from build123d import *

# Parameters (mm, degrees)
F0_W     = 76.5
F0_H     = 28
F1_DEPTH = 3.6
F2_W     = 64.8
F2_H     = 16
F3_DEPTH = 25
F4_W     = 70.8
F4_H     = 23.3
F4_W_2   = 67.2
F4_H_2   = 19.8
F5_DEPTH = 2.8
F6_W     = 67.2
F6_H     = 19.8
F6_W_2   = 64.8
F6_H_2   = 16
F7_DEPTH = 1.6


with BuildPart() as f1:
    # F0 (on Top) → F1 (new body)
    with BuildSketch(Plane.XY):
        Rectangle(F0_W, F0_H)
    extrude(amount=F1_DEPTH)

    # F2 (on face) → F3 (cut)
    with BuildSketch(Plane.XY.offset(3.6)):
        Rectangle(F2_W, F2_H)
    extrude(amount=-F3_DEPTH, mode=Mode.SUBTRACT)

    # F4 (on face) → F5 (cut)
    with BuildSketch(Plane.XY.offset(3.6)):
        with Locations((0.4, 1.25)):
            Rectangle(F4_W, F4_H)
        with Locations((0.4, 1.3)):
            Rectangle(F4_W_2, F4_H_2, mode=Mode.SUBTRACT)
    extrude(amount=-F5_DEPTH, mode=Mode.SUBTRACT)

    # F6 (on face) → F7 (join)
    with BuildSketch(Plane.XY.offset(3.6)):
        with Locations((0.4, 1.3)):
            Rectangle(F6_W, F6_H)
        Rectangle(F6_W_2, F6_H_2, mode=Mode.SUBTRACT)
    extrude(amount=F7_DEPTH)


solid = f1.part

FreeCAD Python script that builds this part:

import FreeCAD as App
import Part
import Sketcher


def add_polygon(sketch, points):
    """Adds a closed chain of lines whose ends are joined by coincident constraints."""
    first, n = sketch.GeometryCount, len(points)
    for a, b in zip(points, points[1:] + points[:1]):
        sketch.addGeometry(Part.LineSegment(App.Vector(*a, 0), App.Vector(*b, 0)), False)
    for i in range(n):
        sketch.addConstraint(Sketcher.Constraint("Coincident", first + i, 2, first + (i + 1) % n, 1))

doc = App.newDocument("Part")
params = doc.addObject("Spreadsheet::Sheet", "Params")
for row, (alias, value) in enumerate([
    ("sketch1_height", "28 mm"),
    ("sketch1_width", "76.5 mm"),
    ("pad1_length", "3.6 mm"),
    ("sketch2_height", "16 mm"),
    ("sketch2_width", "64.8 mm"),
    ("pocket1_length", "25 mm"),
    ("sketch3_width", "70.8 mm"),
    ("sketch3_width2", "67.2 mm"),
    ("sketch3_height", "23.3 mm"),
    ("sketch3_height2", "19.8 mm"),
    ("pocket2_length", "2.8 mm"),
    ("sketch4_height", "16 mm"),
    ("sketch4_width", "67.2 mm"),
    ("sketch4_width2", "64.8 mm"),
    ("sketch4_height2", "19.8 mm"),
    ("pad2_length", "1.6 mm"),
], start=1):
    params.set(f"A{row}", alias)
    params.set(f"B{row}", "=" + value)
    params.setAlias(f"B{row}", alias)

body = doc.addObject("PartDesign::Body", "Body")

# Sketch on XY plane
sketch1 = doc.addObject("Sketcher::SketchObject", "Sketch")
body.addObject(sketch1)
sketch1.AttachmentSupport = (doc.XY_Plane, [""])
sketch1.MapMode = "FlatFace"
add_polygon(sketch1, [(-38, 14), (-38, -14), (38, -14), (38, 14)])  # lines 0-3
sketch1.addConstraint([
    Sketcher.Constraint("Vertical", 0),
    Sketcher.Constraint("Horizontal", 1),
    Sketcher.Constraint("Vertical", 2),
    Sketcher.Constraint("Horizontal", 3),
    Sketcher.Constraint("Symmetric", 0, 2, 2, 2, -1, 1),
    Sketcher.Constraint("DistanceY", 0, 2, 0, 1, 28.0),
    Sketcher.Constraint("DistanceX", 1, 1, 1, 2, 76.5),
])
sketch1.setExpression("Constraints[9]", "Params.sketch1_height")
sketch1.setExpression("Constraints[10]", "Params.sketch1_width")
pad1 = doc.addObject("PartDesign::Pad", "Pad")
body.addObject(pad1)
pad1.Profile = sketch1
pad1.setExpression("Length", "Params.pad1_length")

# Sketch on XY plane
sketch2 = doc.addObject("Sketcher::SketchObject", "Sketch001")
body.addObject(sketch2)
sketch2.AttachmentSupport = (doc.XY_Plane, [""])
sketch2.MapMode = "FlatFace"
sketch2.AttachmentOffset = App.Placement(App.Vector(0, 0, 3.6), App.Rotation())
add_polygon(sketch2, [(-32, 8), (-32, -8), (32, -8), (32, 8)])  # lines 0-3
sketch2.addConstraint([
    Sketcher.Constraint("Vertical", 0),
    Sketcher.Constraint("Horizontal", 1),
    Sketcher.Constraint("Vertical", 2),
    Sketcher.Constraint("Horizontal", 3),
    Sketcher.Constraint("Symmetric", 0, 2, 2, 2, -1, 1),
    Sketcher.Constraint("DistanceY", 0, 2, 0, 1, 16.0),
    Sketcher.Constraint("DistanceX", 1, 1, 1, 2, 64.8),
])
sketch2.setExpression("Constraints[9]", "Params.sketch2_height")
sketch2.setExpression("Constraints[10]", "Params.sketch2_width")
pocket1 = doc.addObject("PartDesign::Pocket", "Pocket")
body.addObject(pocket1)
pocket1.Profile = sketch2
pocket1.setExpression("Length", "Params.pocket1_length")

# Sketch on XY plane
sketch3 = doc.addObject("Sketcher::SketchObject", "Sketch002")
body.addObject(sketch3)
sketch3.AttachmentSupport = (doc.XY_Plane, [""])
sketch3.MapMode = "FlatFace"
sketch3.AttachmentOffset = App.Placement(App.Vector(0, 0, 3.6), App.Rotation())
add_polygon(sketch3, [(-35, 13), (-35, -10), (36, -10), (36, 13)])  # lines 0-3
add_polygon(sketch3, [(34, -9), (-33, -9), (-33, 11), (34, 11)])  # lines 4-7
sketch3.addConstraint([
    Sketcher.Constraint("Vertical", 0),
    Sketcher.Constraint("Horizontal", 1),
    Sketcher.Constraint("Vertical", 2),
    Sketcher.Constraint("Horizontal", 3),
    Sketcher.Constraint("Horizontal", 4),
    Sketcher.Constraint("Vertical", 5),
    Sketcher.Constraint("Horizontal", 6),
    Sketcher.Constraint("Vertical", 7),
    Sketcher.Constraint("DistanceX", 1, 1, 1, 2, 70.8),
    Sketcher.Constraint("DistanceX", 4, 2, 4, 1, 67.2),
    Sketcher.Constraint("DistanceY", 0, 2, 0, 1, 23.3),
    Sketcher.Constraint("DistanceY", 5, 1, 5, 2, 19.8),
    Sketcher.Constraint("DistanceX", 0, 2, -1, 1, 35.0),
    Sketcher.Constraint("DistanceX", -1, 1, 6, 2, 34.0),
    Sketcher.Constraint("DistanceY", 0, 2, -1, 1, 10.4),
    Sketcher.Constraint("DistanceY", 4, 2, -1, 1, 8.6),
])
sketch3.setExpression("Constraints[16]", "Params.sketch3_width")
sketch3.setExpression("Constraints[17]", "Params.sketch3_width2")
sketch3.setExpression("Constraints[18]", "Params.sketch3_height")
sketch3.setExpression("Constraints[19]", "Params.sketch3_height2")
pocket2 = doc.addObject("PartDesign::Pocket", "Pocket001")
body.addObject(pocket2)
pocket2.Profile = sketch3
pocket2.setExpression("Length", "Params.pocket2_length")

# Sketch on XY plane
sketch4 = doc.addObject("Sketcher::SketchObject", "Sketch003")
body.addObject(sketch4)
sketch4.AttachmentSupport = (doc.XY_Plane, [""])
sketch4.MapMode = "FlatFace"
sketch4.AttachmentOffset = App.Placement(App.Vector(0, 0, 3.6), App.Rotation())
add_polygon(sketch4, [(-33, 11), (-33, -9), (34, -9), (34, 11)])  # lines 0-3
add_polygon(sketch4, [(32, -8), (-32, -8), (-32, 8), (32, 8)])  # lines 4-7
sketch4.addConstraint([
    Sketcher.Constraint("Vertical", 0),
    Sketcher.Constraint("Horizontal", 1),
    Sketcher.Constraint("Vertical", 2),
    Sketcher.Constraint("Horizontal", 3),
    Sketcher.Constraint("Horizontal", 4),
    Sketcher.Constraint("Vertical", 5),
    Sketcher.Constraint("Horizontal", 6),
    Sketcher.Constraint("Vertical", 7),
    Sketcher.Constraint("Symmetric", 4, 2, 6, 2, -1, 1),
    Sketcher.Constraint("DistanceY", 5, 1, 5, 2, 16.0),
    Sketcher.Constraint("DistanceX", 1, 1, 1, 2, 67.2),
    Sketcher.Constraint("DistanceX", 4, 2, 4, 1, 64.8),
    Sketcher.Constraint("DistanceY", 0, 2, 0, 1, 19.8),
    Sketcher.Constraint("DistanceX", -1, 1, 1, 2, 34.0),
    Sketcher.Constraint("DistanceY", 0, 2, -1, 1, 8.6),
])
sketch4.setExpression("Constraints[17]", "Params.sketch4_height")
sketch4.setExpression("Constraints[18]", "Params.sketch4_width")
sketch4.setExpression("Constraints[19]", "Params.sketch4_width2")
sketch4.setExpression("Constraints[20]", "Params.sketch4_height2")
pad2 = doc.addObject("PartDesign::Pad", "Pad001")
body.addObject(pad2)
pad2.Profile = sketch4
pad2.setExpression("Length", "Params.pad2_length")

doc.recompute()
